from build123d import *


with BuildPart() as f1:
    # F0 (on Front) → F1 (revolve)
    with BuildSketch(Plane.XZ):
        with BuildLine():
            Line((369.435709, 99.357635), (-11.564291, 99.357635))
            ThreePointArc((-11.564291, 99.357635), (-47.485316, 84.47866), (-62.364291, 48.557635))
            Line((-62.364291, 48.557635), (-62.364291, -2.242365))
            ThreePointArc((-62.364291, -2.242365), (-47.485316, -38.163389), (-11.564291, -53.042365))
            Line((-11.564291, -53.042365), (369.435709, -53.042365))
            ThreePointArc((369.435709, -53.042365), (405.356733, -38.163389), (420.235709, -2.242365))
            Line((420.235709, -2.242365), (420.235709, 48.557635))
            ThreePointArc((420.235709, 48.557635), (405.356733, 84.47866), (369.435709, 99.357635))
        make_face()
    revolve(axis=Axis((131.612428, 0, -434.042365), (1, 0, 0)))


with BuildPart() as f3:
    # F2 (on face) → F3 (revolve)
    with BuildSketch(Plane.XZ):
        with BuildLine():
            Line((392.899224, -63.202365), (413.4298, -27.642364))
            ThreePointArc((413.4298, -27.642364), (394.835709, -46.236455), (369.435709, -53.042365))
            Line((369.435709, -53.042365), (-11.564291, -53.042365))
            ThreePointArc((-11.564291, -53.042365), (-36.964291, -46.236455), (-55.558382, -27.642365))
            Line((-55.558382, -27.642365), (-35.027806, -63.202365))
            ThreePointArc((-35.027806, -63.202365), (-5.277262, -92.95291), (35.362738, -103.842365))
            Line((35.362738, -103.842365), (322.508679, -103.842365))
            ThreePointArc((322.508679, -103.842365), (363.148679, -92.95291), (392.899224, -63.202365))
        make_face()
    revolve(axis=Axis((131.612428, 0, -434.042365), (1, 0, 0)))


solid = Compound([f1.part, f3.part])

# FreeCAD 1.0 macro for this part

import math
import FreeCAD as App
import Part
import Sketcher

V = App.Vector
Q = App.Units.Quantity

doc = App.newDocument("Part")
body = doc.addObject("PartDesign::Body", "Body")

sketch1 = body.newObject("Sketcher::SketchObject", "Sketch")
sketch1.AttachmentSupport = (doc.getObject("XZ_Plane"), [""])
sketch1.MapMode = "FlatFace"
sketch1.addGeometry(Part.LineSegment(V(369.435709, 99.357635, 0), V(-11.564291, 99.357635, 0)), False)
sketch1.addGeometry(Part.ArcOfCircle(Part.Circle(V(-11.564293, 48.557637, 0), V(0, 0, 1), 50.799998), math.radians(89.999998), math.radians(180.000002)), False)
sketch1.addGeometry(Part.LineSegment(V(-62.364291, 48.557635, 0), V(-62.364291, -2.242365, 0)), False)
sketch1.addGeometry(Part.ArcOfCircle(Part.Circle(V(-11.564291, -2.242365, 0), V(0, 0, 1), 50.8), math.radians(180), math.radians(270)), False)
sketch1.addGeometry(Part.LineSegment(V(-11.564291, -53.042365, 0), V(369.435709, -53.042365, 0)), False)
sketch1.addGeometry(Part.ArcOfCircle(Part.Circle(V(369.435707, -2.242363, 0), V(0, 0, 1), 50.800002), math.radians(-89.999998), math.radians(-0.000002)), False)
sketch1.addGeometry(Part.LineSegment(V(420.235709, -2.242365, 0), V(420.235709, 48.557635, 0)), False)
sketch1.addGeometry(Part.ArcOfCircle(Part.Circle(V(369.435709, 48.557635, 0), V(0, 0, 1), 50.8), math.radians(0), math.radians(90)), False)
sketch1.addGeometry(Part.LineSegment(V(-62.364291, -434.042365, 0), V(420.235709, -434.042365, 0)), True)
sketch1.addConstraint(Sketcher.Constraint("Tangent", 0, 2, 1, 1))
sketch1.addConstraint(Sketcher.Constraint("Tangent", 1, 2, 2, 1))
sketch1.addConstraint(Sketcher.Constraint("Tangent", 2, 2, 3, 1))
sketch1.addConstraint(Sketcher.Constraint("Tangent", 3, 2, 4, 1))
sketch1.addConstraint(Sketcher.Constraint("Tangent", 4, 2, 5, 1))
sketch1.addConstraint(Sketcher.Constraint("Tangent", 5, 2, 6, 1))
sketch1.addConstraint(Sketcher.Constraint("Tangent", 6, 2, 7, 1))
sketch1.addConstraint(Sketcher.Constraint("Tangent", 7, 2, 0, 1))
sketch1.addConstraint(Sketcher.Constraint("Horizontal", 0))
sketch1.addConstraint(Sketcher.Constraint("Vertical", 2))
sketch1.addConstraint(Sketcher.Constraint("Horizontal", 4))
sketch1.addConstraint(Sketcher.Constraint("Vertical", 6))
sketch1.addConstraint(Sketcher.Constraint("Horizontal", 8))
sketch1.addConstraint(Sketcher.Constraint("Equal", 1, 3))
sketch1.addConstraint(Sketcher.Constraint("Equal", 3, 5))
sketch1.addConstraint(Sketcher.Constraint("Equal", 5, 7))
sketch1.addConstraint(Sketcher.Constraint("Vertical", 2, 2, 8, 1))
sketch1.addConstraint(Sketcher.Constraint("Vertical", 6, 2, 8, 2))
sketch1.addConstraint(Sketcher.Constraint("Radius", 1, Q("1.9999999 in")))
sketch1.addConstraint(Sketcher.Constraint("DistanceX", 0, 2, 0, 1, Q("15 in")))
sketch1.addConstraint(Sketcher.Constraint("DistanceY", 2, 2, 2, 1, Q("2 in")))
sketch1.addConstraint(Sketcher.Constraint("DistanceY", 8, 1, 3, 2, Q("15 in")))
sketch1.addConstraint(Sketcher.Constraint("DistanceX", 3, 3, -1, 1, 11.564291))
sketch1.addConstraint(Sketcher.Constraint("DistanceY", -1, 1, 1, 3, 48.557637))
revolution = body.newObject("PartDesign::Revolution", "Revolution")
revolution.Profile = sketch1
revolution.ReferenceAxis = (sketch1, ["Axis0"])
revolution.Angle = 360
body2 = doc.addObject("PartDesign::Body", "Body001")

sketch2 = body2.newObject("Sketcher::SketchObject", "Sketch001")
sketch2.AttachmentSupport = (doc.getObject("XZ_Plane001"), [""])
sketch2.MapMode = "FlatFace"
sketch2.addGeometry(Part.LineSegment(V(392.899224, -63.202365, 0), V(413.4298, -27.642364, 0)), False)
sketch2.addGeometry(Part.ArcOfCircle(Part.Circle(V(369.435707, -2.242362, 0), V(0, 0, 1), 50.800003), math.radians(-89.999998), math.radians(-30)), False)
sketch2.addGeometry(Part.LineSegment(V(369.435709, -53.042365, 0), V(-11.564291, -53.042365, 0)), False)
sketch2.addGeometry(Part.ArcOfCircle(Part.Circle(V(-11.564289, -2.242361, 0), V(0, 0, 1), 50.800004), math.radians(-149.999997), math.radians(-90.000002)), False)
sketch2.addGeometry(Part.LineSegment(V(-55.558382, -27.642365, 0), V(-35.027806, -63.202365, 0)), False)
sketch2.addGeometry(Part.ArcOfCircle(Part.Circle(V(35.362737, -22.562369, 0), V(0, 0, 1), 81.279996), math.radians(-150.000001), math.radians(-89.999999)), False)
sketch2.addGeometry(Part.LineSegment(V(35.362738, -103.842365, 0), V(322.508679, -103.842365, 0)), False)
sketch2.addGeometry(Part.ArcOfCircle(Part.Circle(V(322.508679, -22.562365, 0), V(0, 0, 1), 81.28), math.radians(-90), math.radians(-30)), False)
sketch2.addGeometry(Part.LineSegment(V(-55.558382, -434.042365, 0), V(413.4298, -434.042365, 0)), True)
sketch2.addConstraint(Sketcher.Constraint("Tangent", 0, 2, 1, 2))
sketch2.addConstraint(Sketcher.Constraint("Tangent", 1, 1, 2, 1))
sketch2.addConstraint(Sketcher.Constraint("Tangent", 2, 2, 3, 2))
sketch2.addConstraint(Sketcher.Constraint("Tangent", 3, 1, 4, 1))
sketch2.addConstraint(Sketcher.Constraint("Tangent", 4, 2, 5, 1))
sketch2.addConstraint(Sketcher.Constraint("Tangent", 5, 2, 6, 1))
sketch2.addConstraint(Sketcher.Constraint("Tangent", 6, 2, 7, 1))
sketch2.addConstraint(Sketcher.Constraint("Tangent", 7, 2, 0, 1))
sketch2.addConstraint(Sketcher.Constraint("Horizontal", 2))
sketch2.addConstraint(Sketcher.Constraint("Horizontal", 6))
sketch2.addConstraint(Sketcher.Constraint("Horizontal", 8))
sketch2.addConstraint(Sketcher.Constraint("Equal", 1, 3))
sketch2.addConstraint(Sketcher.Constraint("Horizontal", 0, 2, 3, 1))
sketch2.addConstraint(Sketcher.Constraint("Horizontal", 4, 2, 7, 2))
sketch2.addConstraint(Sketcher.Constraint("Vertical", 3, 1, 8, 1))
sketch2.addConstraint(Sketcher.Constraint("Vertical", 0, 2, 8, 2))
sketch2.addConstraint(Sketcher.Constraint("Radius", 1, Q("2.0000001 in")))
sketch2.addConstraint(Sketcher.Constraint("Radius", 5, Q("3.1999999 in")))
sketch2.addConstraint(Sketcher.Constraint("DistanceX", 2, 2, 2, 1, Q("15 in")))
sketch2.addConstraint(Sketcher.Constraint("Angle", 0, Q("60 deg")))
sketch2.addConstraint(Sketcher.Constraint("DistanceY", 5, 2, 2, 2, Q("2 in")))
sketch2.addConstraint(Sketcher.Constraint("DistanceY", 8, 1, 5, 2, Q("13 in")))
sketch2.addConstraint(Sketcher.Constraint("DistanceX", -1, 1, 0, 2, 413.4298))
sketch2.addConstraint(Sketcher.Constraint("DistanceY", 3, 3, -1, 1, 2.242361))
revolution2 = body2.newObject("PartDesign::Revolution", "Revolution001")
revolution2.Profile = sketch2
revolution2.ReferenceAxis = (sketch2, ["Axis0"])
revolution2.Angle = 360

doc.recompute()
